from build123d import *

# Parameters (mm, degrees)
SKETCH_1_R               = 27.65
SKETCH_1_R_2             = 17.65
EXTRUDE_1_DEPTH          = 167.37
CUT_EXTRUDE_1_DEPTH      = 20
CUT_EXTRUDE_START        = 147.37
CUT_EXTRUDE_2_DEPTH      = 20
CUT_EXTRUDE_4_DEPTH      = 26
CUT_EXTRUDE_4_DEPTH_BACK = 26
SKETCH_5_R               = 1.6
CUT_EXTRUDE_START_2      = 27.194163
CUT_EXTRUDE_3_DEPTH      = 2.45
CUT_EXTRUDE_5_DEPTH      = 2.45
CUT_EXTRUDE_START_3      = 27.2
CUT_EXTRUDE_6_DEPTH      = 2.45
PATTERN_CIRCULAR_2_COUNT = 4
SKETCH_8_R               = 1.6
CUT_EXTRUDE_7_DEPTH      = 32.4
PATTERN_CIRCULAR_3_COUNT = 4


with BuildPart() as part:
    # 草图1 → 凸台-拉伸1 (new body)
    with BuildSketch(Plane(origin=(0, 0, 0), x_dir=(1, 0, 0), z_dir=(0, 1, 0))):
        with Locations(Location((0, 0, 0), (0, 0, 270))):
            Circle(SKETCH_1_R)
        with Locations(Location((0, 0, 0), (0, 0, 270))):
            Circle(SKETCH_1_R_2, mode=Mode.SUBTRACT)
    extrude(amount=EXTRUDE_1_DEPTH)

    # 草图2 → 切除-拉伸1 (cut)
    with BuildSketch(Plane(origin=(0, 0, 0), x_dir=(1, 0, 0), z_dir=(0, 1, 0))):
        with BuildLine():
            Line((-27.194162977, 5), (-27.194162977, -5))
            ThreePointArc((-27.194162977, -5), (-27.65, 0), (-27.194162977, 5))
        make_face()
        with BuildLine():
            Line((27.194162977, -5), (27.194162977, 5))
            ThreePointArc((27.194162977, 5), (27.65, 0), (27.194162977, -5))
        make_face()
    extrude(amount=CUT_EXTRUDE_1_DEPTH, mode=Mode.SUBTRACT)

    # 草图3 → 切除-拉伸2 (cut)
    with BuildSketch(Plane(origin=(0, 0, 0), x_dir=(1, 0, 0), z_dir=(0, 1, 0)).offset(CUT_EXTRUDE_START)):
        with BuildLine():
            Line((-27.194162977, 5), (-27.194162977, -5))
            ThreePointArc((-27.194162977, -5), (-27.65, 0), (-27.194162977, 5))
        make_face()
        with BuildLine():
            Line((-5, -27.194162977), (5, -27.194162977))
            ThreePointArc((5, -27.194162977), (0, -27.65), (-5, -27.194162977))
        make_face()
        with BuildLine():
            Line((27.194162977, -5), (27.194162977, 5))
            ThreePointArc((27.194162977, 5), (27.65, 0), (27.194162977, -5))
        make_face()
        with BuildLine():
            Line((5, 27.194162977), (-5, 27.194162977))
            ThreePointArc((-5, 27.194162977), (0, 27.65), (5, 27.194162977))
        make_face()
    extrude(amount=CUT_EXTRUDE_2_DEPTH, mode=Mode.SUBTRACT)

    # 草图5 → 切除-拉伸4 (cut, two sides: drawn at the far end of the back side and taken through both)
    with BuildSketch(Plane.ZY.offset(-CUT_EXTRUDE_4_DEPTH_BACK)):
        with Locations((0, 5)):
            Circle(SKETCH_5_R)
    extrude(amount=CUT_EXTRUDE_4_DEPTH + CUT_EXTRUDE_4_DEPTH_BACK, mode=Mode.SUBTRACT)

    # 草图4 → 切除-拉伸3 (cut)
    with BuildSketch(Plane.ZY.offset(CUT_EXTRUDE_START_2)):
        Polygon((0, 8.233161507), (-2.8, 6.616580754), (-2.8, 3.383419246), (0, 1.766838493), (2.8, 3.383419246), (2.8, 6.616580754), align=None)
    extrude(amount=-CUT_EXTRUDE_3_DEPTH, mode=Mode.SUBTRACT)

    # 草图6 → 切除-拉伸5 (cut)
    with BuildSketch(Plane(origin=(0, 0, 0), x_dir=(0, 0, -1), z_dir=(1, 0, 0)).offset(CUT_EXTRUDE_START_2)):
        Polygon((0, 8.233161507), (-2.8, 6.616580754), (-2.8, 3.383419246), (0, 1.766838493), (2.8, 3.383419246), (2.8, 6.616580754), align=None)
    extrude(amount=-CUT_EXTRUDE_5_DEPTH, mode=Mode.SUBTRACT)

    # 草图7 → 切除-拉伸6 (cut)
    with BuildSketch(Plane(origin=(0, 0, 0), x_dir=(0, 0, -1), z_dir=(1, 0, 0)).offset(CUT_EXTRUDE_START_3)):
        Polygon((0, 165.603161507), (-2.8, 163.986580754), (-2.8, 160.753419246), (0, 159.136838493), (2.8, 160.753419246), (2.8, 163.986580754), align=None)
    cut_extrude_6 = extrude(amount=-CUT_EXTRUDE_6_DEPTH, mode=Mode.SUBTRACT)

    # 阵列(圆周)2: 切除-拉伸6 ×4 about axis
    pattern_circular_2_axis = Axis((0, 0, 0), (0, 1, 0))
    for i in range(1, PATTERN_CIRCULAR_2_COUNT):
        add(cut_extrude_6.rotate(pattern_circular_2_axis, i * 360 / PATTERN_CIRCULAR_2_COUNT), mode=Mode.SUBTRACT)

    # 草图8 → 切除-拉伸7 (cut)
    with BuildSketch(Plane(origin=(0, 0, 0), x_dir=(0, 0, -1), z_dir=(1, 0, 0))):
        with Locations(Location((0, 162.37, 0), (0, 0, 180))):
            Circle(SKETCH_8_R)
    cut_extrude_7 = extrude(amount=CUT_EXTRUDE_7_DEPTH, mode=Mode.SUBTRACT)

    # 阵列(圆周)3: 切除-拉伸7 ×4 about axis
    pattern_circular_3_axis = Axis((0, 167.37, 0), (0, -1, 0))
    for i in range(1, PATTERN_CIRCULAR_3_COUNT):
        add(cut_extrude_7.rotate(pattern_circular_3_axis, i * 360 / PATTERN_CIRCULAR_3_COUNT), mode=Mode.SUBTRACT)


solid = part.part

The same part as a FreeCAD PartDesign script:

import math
import FreeCAD as App
import Part
import Sketcher
Q = App.Units.Quantity


def add_polygon(sketch, points):
    """Adds a closed chain of lines whose ends are joined by coincident constraints."""
    first, n = sketch.GeometryCount, len(points)
    for a, b in zip(points, points[1:] + points[:1]):
        sketch.addGeometry(Part.LineSegment(App.Vector(*a, 0), App.Vector(*b, 0)), False)
    for i in range(n):
        sketch.addConstraint(Sketcher.Constraint("Coincident", first + i, 2, first + (i + 1) % n, 1))

doc = App.newDocument("Part")
body = doc.addObject("PartDesign::Body", "Body")

sketch1 = body.newObject("Sketcher::SketchObject", "Sketch")
sketch1.AttachmentSupport = (doc.getObject("XZ_Plane"), [""])
sketch1.MapMode = "FlatFace"
sketch1.addGeometry(Part.Circle(App.Vector(0, 0, 0), App.Vector(0, 0, 1), 28), False)
sketch1.addGeometry(Part.Circle(App.Vector(0, 0, 0), App.Vector(0, 0, 1), 18), False)
sketch1.addConstraint(Sketcher.Constraint("Coincident", 0, 3, -1, 1))
sketch1.addConstraint(Sketcher.Constraint("Coincident", 1, 3, -1, 1))
sketch1.addConstraint(Sketcher.Constraint("Diameter", 0, 55.3))
sketch1.addConstraint(Sketcher.Constraint("Diameter", 1, 35.3))
pad1 = body.newObject("PartDesign::Pad", "Pad")
pad1.Profile = sketch1
pad1.Length = 167.37
pad1.Reversed = True

sketch2 = body.newObject("Sketcher::SketchObject", "Sketch001")
sketch2.AttachmentSupport = (doc.getObject("XZ_Plane"), [""])
sketch2.MapMode = "FlatFace"
sketch2.addGeometry(Part.LineSegment(App.Vector(-27, 5, 0), App.Vector(-27, -5, 0)), False)
sketch2.addGeometry(Part.ArcOfCircle(Part.Circle(App.Vector(0, 0, 0), App.Vector(0, 0, 1), 28), math.radians(170), math.radians(190)), False)
sketch2.addGeometry(Part.LineSegment(App.Vector(27, -5, 0), App.Vector(27, 5, 0)), False)
sketch2.addGeometry(Part.ArcOfCircle(Part.Circle(App.Vector(0, 0, 0), App.Vector(0, 0, 1), 28), math.radians(-10), math.radians(10)), False)
sketch2.addConstraint(Sketcher.Constraint("Coincident", 0, 1, 1, 1))
sketch2.addConstraint(Sketcher.Constraint("Coincident", 1, 2, 0, 2))
sketch2.addConstraint(Sketcher.Constraint("Coincident", 2, 1, 3, 1))
sketch2.addConstraint(Sketcher.Constraint("Coincident", 3, 2, 2, 2))
sketch2.addConstraint(Sketcher.Constraint("Vertical", 0))
sketch2.addConstraint(Sketcher.Constraint("Vertical", 2))
sketch2.addConstraint(Sketcher.Constraint("Coincident", 1, 3, -1, 1))
sketch2.addConstraint(Sketcher.Constraint("Coincident", 3, 3, -1, 1))
sketch2.addConstraint(Sketcher.Constraint("Equal", 1, 3))
sketch2.addConstraint(Sketcher.Constraint("Horizontal", 1, 2, 2, 1))
sketch2.addConstraint(Sketcher.Constraint("DistanceY", 0, 2, 0, 1, 10.0))
sketch2.addConstraint(Sketcher.Constraint("Radius", 1, 27.65))
pocket1 = body.newObject("PartDesign::Pocket", "Pocket")
pocket1.Profile = sketch2
pocket1.Length = 20

sketch3 = body.newObject("Sketcher::SketchObject", "Sketch002")
sketch3.AttachmentSupport = (doc.getObject("XZ_Plane"), [""])
sketch3.MapMode = "FlatFace"
sketch3.AttachmentOffset = App.Placement(App.Vector(0, 0, -147.37), App.Rotation())
sketch3.addGeometry(Part.LineSegment(App.Vector(-27, 5, 0), App.Vector(-27, -5, 0)), False)
sketch3.addGeometry(Part.ArcOfCircle(Part.Circle(App.Vector(0, 0, 0), App.Vector(0, 0, 1), 28), math.radians(170), math.radians(190)), False)
sketch3.addGeometry(Part.LineSegment(App.Vector(5, 27, 0), App.Vector(-5, 27, 0)), False)
sketch3.addGeometry(Part.ArcOfCircle(Part.Circle(App.Vector(0, 0, 0), App.Vector(0, 0, 1), 28), math.radians(80), math.radians(100)), False)
sketch3.addGeometry(Part.LineSegment(App.Vector(27, -5, 0), App.Vector(27, 5, 0)), False)
sketch3.addGeometry(Part.ArcOfCircle(Part.Circle(App.Vector(0, 0, 0), App.Vector(0, 0, 1), 28), math.radians(-10), math.radians(10)), False)
sketch3.addGeometry(Part.LineSegment(App.Vector(-5, -27, 0), App.Vector(5, -27, 0)), False)
sketch3.addGeometry(Part.ArcOfCircle(Part.Circle(App.Vector(0, 0, 0), App.Vector(0, 0, 1), 28), math.radians(-100), math.radians(-80)), False)
sketch3.addConstraint(Sketcher.Constraint("Coincident", 0, 1, 1, 1))
sketch3.addConstraint(Sketcher.Constraint("Coincident", 1, 2, 0, 2))
sketch3.addConstraint(Sketcher.Constraint("Coincident", 2, 1, 3, 1))
sketch3.addConstraint(Sketcher.Constraint("Coincident", 3, 2, 2, 2))
sketch3.addConstraint(Sketcher.Constraint("Coincident", 4, 1, 5, 1))
sketch3.addConstraint(Sketcher.Constraint("Coincident", 5, 2, 4, 2))
sketch3.addConstraint(Sketcher.Constraint("Coincident", 6, 1, 7, 1))
sketch3.addConstraint(Sketcher.Constraint("Coincident", 7, 2, 6, 2))
sketch3.addConstraint(Sketcher.Constraint("Vertical", 0))
sketch3.addConstraint(Sketcher.Constraint("Horizontal", 2))
sketch3.addConstraint(Sketcher.Constraint("Vertical", 4))
sketch3.addConstraint(Sketcher.Constraint("Horizontal", 6))
sketch3.addConstraint(Sketcher.Constraint("Coincident", 1, 3, -1, 1))
sketch3.addConstraint(Sketcher.Constraint("Coincident", 3, 3, -1, 1))
sketch3.addConstraint(Sketcher.Constraint("Coincident", 5, 3, -1, 1))
sketch3.addConstraint(Sketcher.Constraint("Coincident", 7, 3, -1, 1))
sketch3.addConstraint(Sketcher.Constraint("Equal", 1, 3))
sketch3.addConstraint(Sketcher.Constraint("Equal", 3, 5))
sketch3.addConstraint(Sketcher.Constraint("Equal", 5, 7))
sketch3.addConstraint(Sketcher.Constraint("Horizontal", 1, 2, 4, 1))
sketch3.addConstraint(Sketcher.Constraint("Vertical", 3, 2, 6, 1))
sketch3.addConstraint(Sketcher.Constraint("Equal", 6, 0))
sketch3.addConstraint(Sketcher.Constraint("DistanceX", 2, 2, 2, 1, 10.0))
sketch3.addConstraint(Sketcher.Constraint("Radius", 1, 27.65))
pocket2 = body.newObject("PartDesign::Pocket", "Pocket001")
pocket2.Profile = sketch3
pocket2.Length = 20

sketch4 = body.newObject("Sketcher::SketchObject", "Sketch003")
sketch4.AttachmentSupport = (doc.getObject("YZ_Plane"), [""])
sketch4.MapMode = "FlatFace"
sketch4.addGeometry(Part.Circle(App.Vector(5, 0, 0), App.Vector(0, 0, 1), 1.6), False)
sketch4.addConstraint(Sketcher.Constraint("PointOnObject", 0, 3, -1))
sketch4.addConstraint(Sketcher.Constraint("Diameter", 0, 3.2))
sketch4.addConstraint(Sketcher.Constraint("DistanceX", -1, 1, 0, 3, 5.0))
pocket3 = body.newObject("PartDesign::Pocket", "Pocket002")
pocket3.Profile = sketch4
pocket3.Type = "ThroughAll"
pocket3.Midplane = True

sketch5 = body.newObject("Sketcher::SketchObject", "Sketch004")
sketch5.AttachmentSupport = (doc.getObject("YZ_Plane"), [""])
sketch5.MapMode = "FlatFace"
sketch5.AttachmentOffset = App.Placement(App.Vector(0, 0, -27.194163), App.Rotation())
add_polygon(sketch5, [(8.2, 0), (6.6, -2.8), (3.4, -2.8), (1.8, 0), (3.4, 2.8), (6.6, 2.8)])
sketch5.addConstraint(Sketcher.Constraint("Horizontal", 1))
sketch5.addConstraint(Sketcher.Constraint("Horizontal", 4))
sketch5.addConstraint(Sketcher.Constraint("Symmetric", 1, 2, 3, 2, -1))
sketch5.addConstraint(Sketcher.Constraint("PointOnObject", 2, 2, -1))
sketch5.addConstraint(Sketcher.Constraint("PointOnObject", 5, 2, -1))
sketch5.addConstraint(Sketcher.Constraint("Parallel", 0, 3))
sketch5.addConstraint(Sketcher.Constraint("Parallel", 2, 5))
sketch5.addConstraint(Sketcher.Constraint("Angle", 0, Q("-120 deg")))
sketch5.addConstraint(Sketcher.Constraint("DistanceY", 0, 2, -1, 1, 2.8))
sketch5.addConstraint(Sketcher.Constraint("DistanceX", 1, 2, 1, 1, 3.233162))
sketch5.addConstraint(Sketcher.Constraint("DistanceX", -1, 1, 0, 2, 6.616581))
pocket4 = body.newObject("PartDesign::Pocket", "Pocket003")
pocket4.Profile = sketch5
pocket4.Length = 2.45
pocket4.Reversed = True

sketch6 = body.newObject("Sketcher::SketchObject", "Sketch005")
sketch6.AttachmentSupport = (doc.getObject("YZ_Plane"), [""])
sketch6.MapMode = "FlatFace"
sketch6.AttachmentOffset = App.Placement(App.Vector(0, 0, 27.194163), App.Rotation())
add_polygon(sketch6, [(8.2, 0), (6.6, 2.8), (3.4, 2.8), (1.8, 0), (3.4, -2.8), (6.6, -2.8)])
sketch6.addConstraint(Sketcher.Constraint("Horizontal", 1))
sketch6.addConstraint(Sketcher.Constraint("Horizontal", 4))
sketch6.addConstraint(Sketcher.Constraint("Symmetric", 1, 2, 3, 2, -1))
sketch6.addConstraint(Sketcher.Constraint("PointOnObject", 2, 2, -1))
sketch6.addConstraint(Sketcher.Constraint("PointOnObject", 5, 2, -1))
sketch6.addConstraint(Sketcher.Constraint("Parallel", 0, 3))
sketch6.addConstraint(Sketcher.Constraint("Parallel", 2, 5))
sketch6.addConstraint(Sketcher.Constraint("Angle", 0, Q("120 deg")))
sketch6.addConstraint(Sketcher.Constraint("DistanceY", -1, 1, 0, 2, 2.8))
sketch6.addConstraint(Sketcher.Constraint("DistanceX", 1, 2, 1, 1, 3.233162))
sketch6.addConstraint(Sketcher.Constraint("DistanceX", -1, 1, 0, 2, 6.616581))
pocket5 = body.newObject("PartDesign::Pocket", "Pocket004")
pocket5.Profile = sketch6
pocket5.Length = 2.45

sketch7 = body.newObject("Sketcher::SketchObject", "Sketch006")
sketch7.AttachmentSupport = (doc.getObject("YZ_Plane"), [""])
sketch7.MapMode = "FlatFace"
sketch7.AttachmentOffset = App.Placement(App.Vector(0, 0, 27.2), App.Rotation())
add_polygon(sketch7, [(165.6, 0), (164, 2.8), (160.8, 2.8), (159.1, 0), (160.8, -2.8), (164, -2.8)])
sketch7.addConstraint(Sketcher.Constraint("Horizontal", 1))
sketch7.addConstraint(Sketcher.Constraint("Horizontal", 4))
sketch7.addConstraint(Sketcher.Constraint("Symmetric", 1, 2, 3, 2, -1))
sketch7.addConstraint(Sketcher.Constraint("PointOnObject", 2, 2, -1))
sketch7.addConstraint(Sketcher.Constraint("PointOnObject", 5, 2, -1))
sketch7.addConstraint(Sketcher.Constraint("Parallel", 0, 3))
sketch7.addConstraint(Sketcher.Constraint("Parallel", 2, 5))
sketch7.addConstraint(Sketcher.Constraint("Angle", 0, Q("120 deg")))
sketch7.addConstraint(Sketcher.Constraint("DistanceY", -1, 1, 0, 2, 2.8))
sketch7.addConstraint(Sketcher.Constraint("DistanceX", 1, 2, 1, 1, 3.233162))
sketch7.addConstraint(Sketcher.Constraint("DistanceX", -1, 1, 0, 2, 163.986581))
pocket6 = body.newObject("PartDesign::Pocket", "Pocket005")
pocket6.Profile = sketch7
pocket6.Length = 2.45
doc.recompute()

polarpattern = body.newObject("PartDesign::PolarPattern", "PolarPattern")
polarpattern.Originals = [pocket6]
polarpattern.Axis = (doc.getObject("Y_Axis"), [""])
polarpattern.Angle = 360
polarpattern.Occurrences = 4
body.Tip = polarpattern

sketch8 = body.newObject("Sketcher::SketchObject", "Sketch007")
sketch8.AttachmentSupport = (doc.getObject("YZ_Plane"), [""])
sketch8.MapMode = "FlatFace"
sketch8.addGeometry(Part.Circle(App.Vector(162.4, 0, 0), App.Vector(0, 0, 1), 1.6), False)
sketch8.addConstraint(Sketcher.Constraint("PointOnObject", 0, 3, -1))
sketch8.addConstraint(Sketcher.Constraint("Diameter", 0, 3.2))
sketch8.addConstraint(Sketcher.Constraint("DistanceX", -1, 1, 0, 3, 162.37))
pocket7 = body.newObject("PartDesign::Pocket", "Pocket006")
pocket7.Profile = sketch8
pocket7.Length = 32.4
pocket7.Reversed = True
doc.recompute()

polarpattern2 = body.newObject("PartDesign::PolarPattern", "PolarPattern001")
polarpattern2.Originals = [pocket7]
polarpattern2.Axis = (doc.getObject("Y_Axis"), [""])
polarpattern2.Angle = 360
polarpattern2.Occurrences = 4
body.Tip = polarpattern2

doc.recompute()
